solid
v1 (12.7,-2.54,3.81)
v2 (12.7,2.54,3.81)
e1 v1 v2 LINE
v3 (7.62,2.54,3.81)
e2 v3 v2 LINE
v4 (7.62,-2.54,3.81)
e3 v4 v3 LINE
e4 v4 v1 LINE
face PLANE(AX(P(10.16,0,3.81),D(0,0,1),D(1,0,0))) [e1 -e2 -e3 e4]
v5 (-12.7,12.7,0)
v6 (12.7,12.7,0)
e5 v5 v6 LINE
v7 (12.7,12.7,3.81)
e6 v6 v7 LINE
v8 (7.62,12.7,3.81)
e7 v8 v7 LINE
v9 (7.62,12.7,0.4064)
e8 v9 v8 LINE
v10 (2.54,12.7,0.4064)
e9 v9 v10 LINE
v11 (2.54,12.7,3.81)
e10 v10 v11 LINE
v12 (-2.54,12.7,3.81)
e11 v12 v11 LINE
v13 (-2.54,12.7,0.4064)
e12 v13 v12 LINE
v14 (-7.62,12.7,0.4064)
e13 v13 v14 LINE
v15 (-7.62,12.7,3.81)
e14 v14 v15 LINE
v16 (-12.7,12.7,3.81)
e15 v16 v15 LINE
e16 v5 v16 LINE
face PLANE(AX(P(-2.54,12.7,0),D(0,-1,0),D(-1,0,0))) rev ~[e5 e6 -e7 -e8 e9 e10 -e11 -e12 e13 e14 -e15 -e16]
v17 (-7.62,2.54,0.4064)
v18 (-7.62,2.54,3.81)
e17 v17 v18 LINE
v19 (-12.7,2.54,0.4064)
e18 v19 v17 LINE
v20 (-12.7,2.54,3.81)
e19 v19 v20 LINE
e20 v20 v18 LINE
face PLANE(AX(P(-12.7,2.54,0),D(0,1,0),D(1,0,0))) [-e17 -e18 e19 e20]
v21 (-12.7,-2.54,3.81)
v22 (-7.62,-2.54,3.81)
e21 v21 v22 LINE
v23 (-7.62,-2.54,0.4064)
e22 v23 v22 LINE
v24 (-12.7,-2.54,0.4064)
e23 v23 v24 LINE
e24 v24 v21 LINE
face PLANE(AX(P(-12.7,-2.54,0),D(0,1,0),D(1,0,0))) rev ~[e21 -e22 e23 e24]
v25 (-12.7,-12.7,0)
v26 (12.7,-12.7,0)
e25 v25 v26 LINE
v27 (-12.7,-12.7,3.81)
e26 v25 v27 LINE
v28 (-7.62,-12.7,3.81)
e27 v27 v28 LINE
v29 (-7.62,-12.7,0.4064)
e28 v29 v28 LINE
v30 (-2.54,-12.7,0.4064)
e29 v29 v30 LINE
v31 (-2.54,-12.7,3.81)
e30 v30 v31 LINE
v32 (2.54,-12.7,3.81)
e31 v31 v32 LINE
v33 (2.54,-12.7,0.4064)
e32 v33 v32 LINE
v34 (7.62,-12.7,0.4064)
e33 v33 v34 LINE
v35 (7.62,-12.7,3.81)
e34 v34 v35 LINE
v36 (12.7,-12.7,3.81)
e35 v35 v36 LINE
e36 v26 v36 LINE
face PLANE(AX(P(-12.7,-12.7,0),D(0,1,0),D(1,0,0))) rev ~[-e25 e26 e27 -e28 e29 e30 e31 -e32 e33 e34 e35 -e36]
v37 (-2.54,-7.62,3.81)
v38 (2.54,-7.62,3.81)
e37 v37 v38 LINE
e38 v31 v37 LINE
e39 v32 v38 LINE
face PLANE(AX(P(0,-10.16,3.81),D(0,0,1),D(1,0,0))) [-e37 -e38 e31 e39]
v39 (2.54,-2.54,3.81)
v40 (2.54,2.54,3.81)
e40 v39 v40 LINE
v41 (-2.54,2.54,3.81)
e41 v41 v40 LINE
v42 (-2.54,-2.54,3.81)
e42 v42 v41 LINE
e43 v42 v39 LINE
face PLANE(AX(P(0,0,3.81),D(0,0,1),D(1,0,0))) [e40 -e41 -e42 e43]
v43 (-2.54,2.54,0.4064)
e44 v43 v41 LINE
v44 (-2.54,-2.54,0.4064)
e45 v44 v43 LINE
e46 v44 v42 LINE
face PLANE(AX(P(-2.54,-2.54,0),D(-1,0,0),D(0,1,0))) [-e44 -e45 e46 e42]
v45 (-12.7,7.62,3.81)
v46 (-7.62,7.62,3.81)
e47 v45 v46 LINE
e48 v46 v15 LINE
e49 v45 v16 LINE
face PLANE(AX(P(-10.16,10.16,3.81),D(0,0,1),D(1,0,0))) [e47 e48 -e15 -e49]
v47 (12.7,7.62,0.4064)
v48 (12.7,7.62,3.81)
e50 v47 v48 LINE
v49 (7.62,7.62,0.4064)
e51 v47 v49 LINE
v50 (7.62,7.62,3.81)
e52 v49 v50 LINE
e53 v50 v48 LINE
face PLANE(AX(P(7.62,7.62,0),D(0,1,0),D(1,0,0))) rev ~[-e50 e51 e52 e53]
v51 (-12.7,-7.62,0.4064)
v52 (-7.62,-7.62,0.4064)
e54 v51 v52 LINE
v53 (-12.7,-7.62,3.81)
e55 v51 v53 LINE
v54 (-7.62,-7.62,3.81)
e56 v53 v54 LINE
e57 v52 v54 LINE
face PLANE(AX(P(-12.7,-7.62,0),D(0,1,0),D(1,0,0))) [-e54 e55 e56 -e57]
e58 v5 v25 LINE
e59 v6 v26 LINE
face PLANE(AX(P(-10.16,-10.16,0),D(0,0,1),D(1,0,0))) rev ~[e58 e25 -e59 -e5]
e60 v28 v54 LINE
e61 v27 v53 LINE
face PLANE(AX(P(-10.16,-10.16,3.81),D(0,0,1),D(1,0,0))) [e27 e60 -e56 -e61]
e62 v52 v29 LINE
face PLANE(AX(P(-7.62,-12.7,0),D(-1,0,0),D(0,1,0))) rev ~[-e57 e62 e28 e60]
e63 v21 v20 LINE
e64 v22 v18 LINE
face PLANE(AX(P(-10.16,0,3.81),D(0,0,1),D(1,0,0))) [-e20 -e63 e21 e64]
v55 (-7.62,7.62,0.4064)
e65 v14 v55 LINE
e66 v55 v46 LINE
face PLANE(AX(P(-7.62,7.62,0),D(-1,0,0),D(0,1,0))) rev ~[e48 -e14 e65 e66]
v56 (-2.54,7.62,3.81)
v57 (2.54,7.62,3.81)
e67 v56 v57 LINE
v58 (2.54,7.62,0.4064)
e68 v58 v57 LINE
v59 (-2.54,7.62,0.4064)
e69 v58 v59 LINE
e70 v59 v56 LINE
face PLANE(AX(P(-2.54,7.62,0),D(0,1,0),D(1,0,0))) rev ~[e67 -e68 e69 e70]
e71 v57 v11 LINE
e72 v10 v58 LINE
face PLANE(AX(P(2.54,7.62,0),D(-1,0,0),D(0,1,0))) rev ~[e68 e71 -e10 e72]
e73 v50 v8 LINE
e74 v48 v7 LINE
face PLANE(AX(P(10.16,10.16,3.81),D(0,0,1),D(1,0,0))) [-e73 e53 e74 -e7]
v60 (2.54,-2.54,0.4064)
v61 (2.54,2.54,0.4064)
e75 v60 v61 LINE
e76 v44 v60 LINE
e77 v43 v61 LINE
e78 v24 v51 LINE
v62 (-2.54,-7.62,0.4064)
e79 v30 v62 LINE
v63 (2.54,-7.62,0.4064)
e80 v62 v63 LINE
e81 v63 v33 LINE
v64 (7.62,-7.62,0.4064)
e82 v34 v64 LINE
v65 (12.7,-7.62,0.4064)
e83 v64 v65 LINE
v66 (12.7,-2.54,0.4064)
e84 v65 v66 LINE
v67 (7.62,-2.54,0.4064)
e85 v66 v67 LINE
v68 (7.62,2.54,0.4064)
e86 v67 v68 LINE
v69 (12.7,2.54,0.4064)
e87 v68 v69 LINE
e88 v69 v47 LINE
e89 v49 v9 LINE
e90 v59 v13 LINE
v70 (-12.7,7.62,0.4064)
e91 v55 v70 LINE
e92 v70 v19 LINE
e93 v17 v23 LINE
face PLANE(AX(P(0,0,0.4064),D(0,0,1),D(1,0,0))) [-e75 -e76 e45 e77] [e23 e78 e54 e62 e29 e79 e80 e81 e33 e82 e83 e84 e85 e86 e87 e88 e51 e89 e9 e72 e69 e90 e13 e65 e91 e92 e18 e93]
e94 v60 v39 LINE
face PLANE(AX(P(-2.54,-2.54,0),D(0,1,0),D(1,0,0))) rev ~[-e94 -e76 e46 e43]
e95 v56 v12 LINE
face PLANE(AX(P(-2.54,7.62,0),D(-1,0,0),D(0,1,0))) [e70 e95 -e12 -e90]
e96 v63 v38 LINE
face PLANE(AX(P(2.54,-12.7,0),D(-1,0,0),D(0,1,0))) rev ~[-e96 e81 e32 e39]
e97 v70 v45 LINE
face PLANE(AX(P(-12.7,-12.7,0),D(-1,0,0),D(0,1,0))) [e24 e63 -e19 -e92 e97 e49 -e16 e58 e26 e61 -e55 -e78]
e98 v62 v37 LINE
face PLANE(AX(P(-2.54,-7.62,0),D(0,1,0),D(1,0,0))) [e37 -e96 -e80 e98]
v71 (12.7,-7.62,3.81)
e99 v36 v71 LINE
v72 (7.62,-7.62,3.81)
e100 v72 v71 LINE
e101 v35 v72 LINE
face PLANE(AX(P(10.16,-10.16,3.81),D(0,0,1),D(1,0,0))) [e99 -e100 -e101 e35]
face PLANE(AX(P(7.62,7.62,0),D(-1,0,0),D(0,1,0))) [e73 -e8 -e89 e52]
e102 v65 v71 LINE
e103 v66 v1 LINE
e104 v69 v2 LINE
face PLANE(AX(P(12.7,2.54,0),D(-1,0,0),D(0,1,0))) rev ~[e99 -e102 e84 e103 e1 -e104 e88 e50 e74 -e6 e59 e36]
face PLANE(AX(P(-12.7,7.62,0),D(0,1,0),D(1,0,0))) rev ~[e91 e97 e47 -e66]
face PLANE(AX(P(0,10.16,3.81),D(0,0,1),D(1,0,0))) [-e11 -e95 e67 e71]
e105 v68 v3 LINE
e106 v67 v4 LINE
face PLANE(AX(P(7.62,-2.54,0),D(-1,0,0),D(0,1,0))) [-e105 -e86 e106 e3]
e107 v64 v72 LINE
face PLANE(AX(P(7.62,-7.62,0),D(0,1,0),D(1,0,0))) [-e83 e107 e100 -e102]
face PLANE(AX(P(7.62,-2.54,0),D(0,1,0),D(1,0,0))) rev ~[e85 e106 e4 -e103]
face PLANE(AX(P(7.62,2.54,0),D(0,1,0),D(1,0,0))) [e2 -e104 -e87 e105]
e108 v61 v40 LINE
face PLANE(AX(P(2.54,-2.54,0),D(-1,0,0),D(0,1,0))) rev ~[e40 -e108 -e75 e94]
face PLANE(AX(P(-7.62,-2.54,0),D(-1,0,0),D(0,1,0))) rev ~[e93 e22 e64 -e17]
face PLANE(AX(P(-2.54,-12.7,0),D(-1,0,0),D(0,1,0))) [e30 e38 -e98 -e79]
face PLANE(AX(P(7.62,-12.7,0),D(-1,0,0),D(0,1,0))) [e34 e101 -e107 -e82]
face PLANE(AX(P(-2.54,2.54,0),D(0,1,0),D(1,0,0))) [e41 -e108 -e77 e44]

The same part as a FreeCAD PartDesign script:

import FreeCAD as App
import Part
import Sketcher

V = App.Vector
Q = App.Units.Quantity


def add_polygon(sketch, points):
    """Adds a closed chain of lines whose ends are joined by coincident constraints."""
    first, n = sketch.GeometryCount, len(points)
    for a, b in zip(points, points[1:] + points[:1]):
        sketch.addGeometry(Part.LineSegment(App.Vector(*a, 0), App.Vector(*b, 0)), False)
    for i in range(n):
        sketch.addConstraint(Sketcher.Constraint("Coincident", first + i, 2, first + (i + 1) % n, 1))

doc = App.newDocument("Part")
body = doc.addObject("PartDesign::Body", "Body")

sketch1 = doc.addObject("Sketcher::SketchObject", "Sketch")
body.addObject(sketch1)
sketch1.AttachmentSupport = (doc.XY_Plane, [""])
sketch1.MapMode = "FlatFace"
add_polygon(sketch1, [(-2.54, 12.7), (-7.62, 12.7), (-7.62, 7.62), (-12.7, 7.62), (-12.7, 2.54), (-7.62, 2.54), (-7.62, -2.54), (-12.7, -2.54), (-12.7, -7.62), (-7.62, -7.62), (-7.62, -12.7), (-2.54, -12.7), (-2.54, -7.62), (2.54, -7.62), (2.54, -12.7), (7.62, -12.7), (7.62, -7.62), (12.7, -7.62), (12.7, -2.54), (7.62, -2.54), (7.62, 2.54), (12.7, 2.54), (12.7, 7.62), (7.62, 7.62), (7.62, 12.7), (2.54, 12.7), (2.54, 7.62), (-2.54, 7.62)])
add_polygon(sketch1, [(2.54, -2.54), (-2.54, -2.54), (-2.54, 2.54), (2.54, 2.54)])
sketch1.addConstraint(Sketcher.Constraint("Horizontal", 0))
sketch1.addConstraint(Sketcher.Constraint("Vertical", 1))
sketch1.addConstraint(Sketcher.Constraint("Horizontal", 2))
sketch1.addConstraint(Sketcher.Constraint("Vertical", 3))
sketch1.addConstraint(Sketcher.Constraint("Horizontal", 4))
sketch1.addConstraint(Sketcher.Constraint("Vertical", 5))
sketch1.addConstraint(Sketcher.Constraint("Horizontal", 6))
sketch1.addConstraint(Sketcher.Constraint("Vertical", 7))
sketch1.addConstraint(Sketcher.Constraint("Horizontal", 8))
sketch1.addConstraint(Sketcher.Constraint("Vertical", 9))
sketch1.addConstraint(Sketcher.Constraint("Horizontal", 10))
sketch1.addConstraint(Sketcher.Constraint("Vertical", 11))
sketch1.addConstraint(Sketcher.Constraint("Horizontal", 12))
sketch1.addConstraint(Sketcher.Constraint("Vertical", 13))
sketch1.addConstraint(Sketcher.Constraint("Horizontal", 14))
sketch1.addConstraint(Sketcher.Constraint("Vertical", 15))
sketch1.addConstraint(Sketcher.Constraint("Horizontal", 16))
sketch1.addConstraint(Sketcher.Constraint("Vertical", 17))
sketch1.addConstraint(Sketcher.Constraint("Horizontal", 18))
sketch1.addConstraint(Sketcher.Constraint("Vertical", 19))
sketch1.addConstraint(Sketcher.Constraint("Horizontal", 20))
sketch1.addConstraint(Sketcher.Constraint("Vertical", 21))
sketch1.addConstraint(Sketcher.Constraint("Horizontal", 22))
sketch1.addConstraint(Sketcher.Constraint("Vertical", 23))
sketch1.addConstraint(Sketcher.Constraint("Horizontal", 24))
sketch1.addConstraint(Sketcher.Constraint("Vertical", 25))
sketch1.addConstraint(Sketcher.Constraint("Horizontal", 26))
sketch1.addConstraint(Sketcher.Constraint("Vertical", 27))
sketch1.addConstraint(Sketcher.Constraint("Horizontal", 28))
sketch1.addConstraint(Sketcher.Constraint("Vertical", 29))
sketch1.addConstraint(Sketcher.Constraint("Horizontal", 30))
sketch1.addConstraint(Sketcher.Constraint("Vertical", 31))
sketch1.addConstraint(Sketcher.Constraint("Symmetric", 0, 2, 14, 2, -1, 1))
sketch1.addConstraint(Sketcher.Constraint("Symmetric", 2, 2, 16, 2, -1, 1))
sketch1.addConstraint(Sketcher.Constraint("Symmetric", 4, 2, 18, 2, -1, 1))
sketch1.addConstraint(Sketcher.Constraint("Symmetric", 6, 2, 20, 2, -1, 1))
sketch1.addConstraint(Sketcher.Constraint("Symmetric", 8, 2, 22, 2, -1, 1))
sketch1.addConstraint(Sketcher.Constraint("Symmetric", 10, 2, 24, 2, -1, 1))
sketch1.addConstraint(Sketcher.Constraint("Symmetric", 12, 2, 26, 2, -1, 1))
sketch1.addConstraint(Sketcher.Constraint("Symmetric", 28, 2, 30, 2, -1, 1))
sketch1.addConstraint(Sketcher.Constraint("Symmetric", 10, 2, 13, 2, -2))
sketch1.addConstraint(Sketcher.Constraint("Symmetric", 8, 2, 15, 2, -2))
sketch1.addConstraint(Sketcher.Constraint("Symmetric", 6, 2, 17, 2, -2))
sketch1.addConstraint(Sketcher.Constraint("Horizontal", 8, 2, 11, 2))
sketch1.addConstraint(Sketcher.Constraint("Horizontal", 18, 2, 28, 2))
sketch1.addConstraint(Sketcher.Constraint("Vertical", 1, 2, 4, 2))
sketch1.addConstraint(Sketcher.Constraint("Vertical", 27, 2, 28, 2))
sketch1.addConstraint(Sketcher.Constraint("Equal", 0, 2))
sketch1.addConstraint(Sketcher.Constraint("Equal", 10, 12))
sketch1.addConstraint(Sketcher.Constraint("Equal", 30, 1))
sketch1.addConstraint(Sketcher.Constraint("Equal", 1, 3))
sketch1.addConstraint(Sketcher.Constraint("Equal", 3, 5))
sketch1.addConstraint(Sketcher.Constraint("DistanceX", 0, 2, 0, 1, Q("0.2 in")))
pad1 = doc.addObject("PartDesign::Pad", "Pad")
body.addObject(pad1)
pad1.Profile = sketch1
pad1.Length = Q("0.016 in")

sketch2 = doc.addObject("Sketcher::SketchObject", "Sketch001")
body.addObject(sketch2)
sketch2.AttachmentSupport = (doc.XY_Plane, [""])
sketch2.MapMode = "FlatFace"
add_polygon(sketch2, [(-12.7, -7.62), (-12.7, -12.7), (-7.62, -12.7), (-7.62, -7.62)])
add_polygon(sketch2, [(-12.7, 2.54), (-12.7, -2.54), (-7.62, -2.54), (-7.62, 2.54)])
add_polygon(sketch2, [(-12.7, 12.7), (-12.7, 7.62), (-7.62, 7.62), (-7.62, 12.7)])
add_polygon(sketch2, [(-2.54, 12.7), (-2.54, 7.62), (2.54, 7.62), (2.54, 12.7)])
add_polygon(sketch2, [(-2.54, 2.54), (-2.54, -2.54), (2.54, -2.54), (2.54, 2.54)])
add_polygon(sketch2, [(7.62, 2.54), (7.62, -2.54), (12.7, -2.54), (12.7, 2.54)])
add_polygon(sketch2, [(7.62, 12.7), (7.62, 7.62), (12.7, 7.62), (12.7, 12.7)])
add_polygon(sketch2, [(7.62, -7.62), (7.62, -12.7), (12.7, -12.7), (12.7, -7.62)])
add_polygon(sketch2, [(-2.54, -7.62), (-2.54, -12.7), (2.54, -12.7), (2.54, -7.62)])
sketch2.addConstraint(Sketcher.Constraint("Vertical", 0))
sketch2.addConstraint(Sketcher.Constraint("Horizontal", 1))
sketch2.addConstraint(Sketcher.Constraint("Vertical", 2))
sketch2.addConstraint(Sketcher.Constraint("Horizontal", 3))
sketch2.addConstraint(Sketcher.Constraint("Vertical", 4))
sketch2.addConstraint(Sketcher.Constraint("Horizontal", 5))
sketch2.addConstraint(Sketcher.Constraint("Vertical", 6))
sketch2.addConstraint(Sketcher.Constraint("Horizontal", 7))
sketch2.addConstraint(Sketcher.Constraint("Vertical", 8))
sketch2.addConstraint(Sketcher.Constraint("Horizontal", 9))
sketch2.addConstraint(Sketcher.Constraint("Vertical", 10))
sketch2.addConstraint(Sketcher.Constraint("Horizontal", 11))
sketch2.addConstraint(Sketcher.Constraint("Vertical", 12))
sketch2.addConstraint(Sketcher.Constraint("Horizontal", 13))
sketch2.addConstraint(Sketcher.Constraint("Vertical", 14))
sketch2.addConstraint(Sketcher.Constraint("Horizontal", 15))
sketch2.addConstraint(Sketcher.Constraint("Vertical", 16))
sketch2.addConstraint(Sketcher.Constraint("Horizontal", 17))
sketch2.addConstraint(Sketcher.Constraint("Vertical", 18))
sketch2.addConstraint(Sketcher.Constraint("Horizontal", 19))
sketch2.addConstraint(Sketcher.Constraint("Vertical", 20))
sketch2.addConstraint(Sketcher.Constraint("Horizontal", 21))
sketch2.addConstraint(Sketcher.Constraint("Vertical", 22))
sketch2.addConstraint(Sketcher.Constraint("Horizontal", 23))
sketch2.addConstraint(Sketcher.Constraint("Vertical", 24))
sketch2.addConstraint(Sketcher.Constraint("Horizontal", 25))
sketch2.addConstraint(Sketcher.Constraint("Vertical", 26))
sketch2.addConstraint(Sketcher.Constraint("Horizontal", 27))
sketch2.addConstraint(Sketcher.Constraint("Vertical", 28))
sketch2.addConstraint(Sketcher.Constraint("Horizontal", 29))
sketch2.addConstraint(Sketcher.Constraint("Vertical", 30))
sketch2.addConstraint(Sketcher.Constraint("Horizontal", 31))
sketch2.addConstraint(Sketcher.Constraint("Vertical", 32))
sketch2.addConstraint(Sketcher.Constraint("Horizontal", 33))
sketch2.addConstraint(Sketcher.Constraint("Vertical", 34))
sketch2.addConstraint(Sketcher.Constraint("Horizontal", 35))
sketch2.addConstraint(Sketcher.Constraint("Symmetric", 16, 2, 18, 2, -1, 1))
sketch2.addConstraint(Sketcher.Constraint("Symmetric", 6, 2, 20, 2, -1, 1))
sketch2.addConstraint(Sketcher.Constraint("Symmetric", 4, 2, 22, 2, -1, 1))
sketch2.addConstraint(Sketcher.Constraint("Symmetric", 2, 2, 24, 2, -1, 1))
sketch2.addConstraint(Sketcher.Constraint("Symmetric", 0, 2, 26, 2, -1, 1))
sketch2.addConstraint(Sketcher.Constraint("Symmetric", 10, 2, 28, 2, -1, 1))
sketch2.addConstraint(Sketcher.Constraint("Symmetric", 8, 2, 30, 2, -1, 1))
sketch2.addConstraint(Sketcher.Constraint("Symmetric", 14, 2, 32, 2, -1, 1))
sketch2.addConstraint(Sketcher.Constraint("Symmetric", 12, 2, 34, 2, -1, 1))
sketch2.addConstraint(Sketcher.Constraint("Symmetric", 9, 2, 24, 2, -2))
sketch2.addConstraint(Sketcher.Constraint("Symmetric", 11, 2, 26, 2, -2))
sketch2.addConstraint(Sketcher.Constraint("Horizontal", 9, 2, 12, 2))
sketch2.addConstraint(Sketcher.Constraint("Horizontal", 11, 2, 14, 2))
sketch2.addConstraint(Sketcher.Constraint("Horizontal", 5, 2, 16, 2))
sketch2.addConstraint(Sketcher.Constraint("Horizontal", 7, 2, 18, 2))
sketch2.addConstraint(Sketcher.Constraint("Vertical", 3, 2, 4, 2))
sketch2.addConstraint(Sketcher.Constraint("Vertical", 2, 2, 5, 2))
sketch2.addConstraint(Sketcher.Constraint("Vertical", 15, 2, 16, 2))
sketch2.addConstraint(Sketcher.Constraint("Vertical", 14, 2, 17, 2))
sketch2.addConstraint(Sketcher.Constraint("Equal", 11, 13))
sketch2.addConstraint(Sketcher.Constraint("Equal", 35, 0))
sketch2.addConstraint(Sketcher.Constraint("Equal", 2, 4))
sketch2.addConstraint(Sketcher.Constraint("DistanceX", 1, 1, 1, 2, Q("0.2 in")))
sketch2.addConstraint(Sketcher.Constraint("DistanceX", 0, 2, -1, 1, Q("0.5 in")))
sketch2.addConstraint(Sketcher.Constraint("DistanceY", 0, 2, -1, 1, Q("0.5 in")))
pad2 = doc.addObject("PartDesign::Pad", "Pad001")
body.addObject(pad2)
pad2.Profile = sketch2
pad2.Length = Q("0.15 in")

doc.recompute()
